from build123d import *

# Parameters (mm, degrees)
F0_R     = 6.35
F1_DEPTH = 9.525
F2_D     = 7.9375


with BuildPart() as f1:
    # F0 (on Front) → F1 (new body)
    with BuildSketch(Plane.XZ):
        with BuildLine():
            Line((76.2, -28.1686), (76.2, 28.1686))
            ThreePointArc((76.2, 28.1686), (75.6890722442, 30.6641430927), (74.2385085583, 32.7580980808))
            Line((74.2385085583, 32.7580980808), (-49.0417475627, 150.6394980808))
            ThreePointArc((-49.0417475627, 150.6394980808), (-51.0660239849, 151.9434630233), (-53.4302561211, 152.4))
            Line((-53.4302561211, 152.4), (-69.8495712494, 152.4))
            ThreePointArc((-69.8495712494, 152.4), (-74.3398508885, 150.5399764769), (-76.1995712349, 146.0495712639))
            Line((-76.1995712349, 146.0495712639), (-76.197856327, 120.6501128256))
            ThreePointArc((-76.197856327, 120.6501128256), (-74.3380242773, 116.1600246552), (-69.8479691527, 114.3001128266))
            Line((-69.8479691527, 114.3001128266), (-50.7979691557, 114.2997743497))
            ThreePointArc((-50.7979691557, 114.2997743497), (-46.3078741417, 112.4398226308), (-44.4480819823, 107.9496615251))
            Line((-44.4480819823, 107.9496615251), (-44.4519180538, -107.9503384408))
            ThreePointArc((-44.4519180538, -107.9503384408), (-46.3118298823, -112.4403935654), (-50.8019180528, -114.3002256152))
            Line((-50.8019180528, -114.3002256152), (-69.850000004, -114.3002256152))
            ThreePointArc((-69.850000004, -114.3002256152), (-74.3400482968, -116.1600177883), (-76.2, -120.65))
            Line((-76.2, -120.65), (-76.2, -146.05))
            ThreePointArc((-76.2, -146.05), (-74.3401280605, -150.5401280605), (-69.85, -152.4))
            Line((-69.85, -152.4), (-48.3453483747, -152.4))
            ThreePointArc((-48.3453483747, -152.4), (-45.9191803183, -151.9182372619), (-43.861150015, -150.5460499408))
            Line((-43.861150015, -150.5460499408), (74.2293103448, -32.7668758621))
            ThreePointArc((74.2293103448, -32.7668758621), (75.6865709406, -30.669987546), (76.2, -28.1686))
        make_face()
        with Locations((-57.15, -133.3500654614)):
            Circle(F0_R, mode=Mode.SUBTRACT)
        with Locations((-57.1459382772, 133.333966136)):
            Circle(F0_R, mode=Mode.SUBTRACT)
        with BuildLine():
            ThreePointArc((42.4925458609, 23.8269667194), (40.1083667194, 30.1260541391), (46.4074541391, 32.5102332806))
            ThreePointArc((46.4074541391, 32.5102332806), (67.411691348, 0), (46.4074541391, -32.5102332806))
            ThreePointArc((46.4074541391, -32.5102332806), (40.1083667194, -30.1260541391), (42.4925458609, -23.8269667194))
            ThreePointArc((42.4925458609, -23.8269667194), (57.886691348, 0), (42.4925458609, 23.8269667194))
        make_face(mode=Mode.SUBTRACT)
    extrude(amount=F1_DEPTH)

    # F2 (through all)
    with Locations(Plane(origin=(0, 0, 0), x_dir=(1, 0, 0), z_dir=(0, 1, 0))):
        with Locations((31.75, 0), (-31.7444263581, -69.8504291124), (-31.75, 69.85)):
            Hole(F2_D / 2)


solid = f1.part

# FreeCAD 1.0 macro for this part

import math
import FreeCAD as App
import Part
import Sketcher
Q = App.Units.Quantity

doc = App.newDocument("Part")
body = doc.addObject("PartDesign::Body", "Body")

sketch1 = body.newObject("Sketcher::SketchObject", "Sketch")
sketch1.AttachmentSupport = (doc.getObject("XZ_Plane"), [""])
sketch1.MapMode = "FlatFace"
sketch1.addGeometry(Part.LineSegment(App.Vector(76.2, -28.1686, 0), App.Vector(76.2, 28.1686, 0)), False)
sketch1.addGeometry(Part.ArcOfCircle(Part.Circle(App.Vector(69.85, 28.1686, 0), App.Vector(0, 0, 1), 6.35), math.radians(0), math.radians(46.282459)), False)
sketch1.addGeometry(Part.LineSegment(App.Vector(74.238509, 32.758098, 0), App.Vector(-49.041748, 150.639498, 0)), False)
sketch1.addGeometry(Part.ArcOfCircle(Part.Circle(App.Vector(-53.430256, 146.05, 0), App.Vector(0, 0, 1), 6.35), math.radians(46.282459), math.radians(90)), False)
sketch1.addGeometry(Part.LineSegment(App.Vector(-53.430256, 152.4, 0), App.Vector(-69.849571, 152.4, 0)), False)
sketch1.addGeometry(Part.ArcOfCircle(Part.Circle(App.Vector(-69.849571, 146.05, 0), App.Vector(0, 0, 1), 6.35), math.radians(90), math.radians(180.003868)), False)
sketch1.addGeometry(Part.LineSegment(App.Vector(-76.199571, 146.049571, 0), App.Vector(-76.197856, 120.650113, 0)), False)
sketch1.addGeometry(Part.ArcOfCircle(Part.Circle(App.Vector(-69.847856, 120.650113, 0), App.Vector(0, 0, 1), 6.35), math.radians(180), math.radians(269.998982)), False)
sketch1.addGeometry(Part.LineSegment(App.Vector(-69.847969, 114.300113, 0), App.Vector(-50.797969, 114.299774, 0)), False)
sketch1.addGeometry(Part.ArcOfCircle(Part.Circle(App.Vector(-50.798082, 107.949774, 0), App.Vector(0, 0, 1), 6.35), math.radians(-0.001018), math.radians(89.998982)), False)
sketch1.addGeometry(Part.LineSegment(App.Vector(-44.448082, 107.949662, 0), App.Vector(-44.451918, -107.950338, 0)), False)
sketch1.addGeometry(Part.ArcOfCircle(Part.Circle(App.Vector(-50.801918, -107.950226, 0), App.Vector(0, 0, 1), 6.35), math.radians(-90), math.radians(-0.001018)), False)
sketch1.addGeometry(Part.LineSegment(App.Vector(-50.801918, -114.300226, 0), App.Vector(-69.85, -114.300226, 0)), False)
sketch1.addGeometry(Part.ArcOfCircle(Part.Circle(App.Vector(-69.85, -120.650226, 0), App.Vector(0, 0, 1), 6.35), math.radians(90), math.radians(179.997964)), False)
sketch1.addGeometry(Part.LineSegment(App.Vector(-76.2, -120.65, 0), App.Vector(-76.2, -146.05, 0)), False)
sketch1.addGeometry(Part.ArcOfCircle(Part.Circle(App.Vector(-69.85, -146.05, 0), App.Vector(0, 0, 1), 6.35), math.radians(180), math.radians(270)), False)
sketch1.addGeometry(Part.LineSegment(App.Vector(-69.85, -152.4, 0), App.Vector(-48.345348, -152.4, 0)), False)
sketch1.addGeometry(Part.ArcOfCircle(Part.Circle(App.Vector(-48.345348, -146.05, 0), App.Vector(0, 0, 1), 6.35), math.radians(-90), math.radians(-45.075615)), False)
sketch1.addGeometry(Part.LineSegment(App.Vector(-43.86115, -150.54605, 0), App.Vector(74.22931, -32.766876, 0)), False)
sketch1.addGeometry(Part.ArcOfCircle(Part.Circle(App.Vector(69.85, -28.1686, 0), App.Vector(0, 0, 1), 6.35), math.radians(-46.397181), math.radians(0)), False)
sketch1.addGeometry(Part.Circle(App.Vector(-57.15, -133.350065, 0), App.Vector(0, 0, 1), 6.35), False)
sketch1.addGeometry(Part.Circle(App.Vector(-57.145938, 133.333966, 0), App.Vector(0, 0, 1), 6.35), False)
sketch1.addGeometry(Part.ArcOfCircle(Part.Circle(App.Vector(31.75, 0, 0), App.Vector(0, 0, 1), 26.136691), math.radians(-65.731452), math.radians(65.731452)), False)
sketch1.addGeometry(Part.ArcOfCircle(Part.Circle(App.Vector(44.45, 28.1686, 0), App.Vector(0, 0, 1), 4.7625), math.radians(65.731452), math.radians(245.731452)), False)
sketch1.addGeometry(Part.ArcOfCircle(Part.Circle(App.Vector(31.75, 0, 0), App.Vector(0, 0, 1), 35.661691), math.radians(-65.731452), math.radians(65.731452)), False)
sketch1.addGeometry(Part.ArcOfCircle(Part.Circle(App.Vector(44.45, -28.1686, 0), App.Vector(0, 0, 1), 4.7625), math.radians(114.268548), math.radians(294.268548)), False)
sketch1.addConstraint(Sketcher.Constraint("Tangent", 0, 2, 1, 1))
sketch1.addConstraint(Sketcher.Constraint("Tangent", 1, 2, 2, 1))
sketch1.addConstraint(Sketcher.Constraint("Tangent", 2, 2, 3, 1))
sketch1.addConstraint(Sketcher.Constraint("Tangent", 3, 2, 4, 1))
sketch1.addConstraint(Sketcher.Constraint("Tangent", 4, 2, 5, 1))
sketch1.addConstraint(Sketcher.Constraint("Tangent", 5, 2, 6, 1))
sketch1.addConstraint(Sketcher.Constraint("Coincident", 6, 2, 7, 1))
sketch1.addConstraint(Sketcher.Constraint("Tangent", 7, 2, 8, 1))
sketch1.addConstraint(Sketcher.Constraint("Tangent", 8, 2, 9, 2))
sketch1.addConstraint(Sketcher.Constraint("Tangent", 9, 1, 10, 1))
sketch1.addConstraint(Sketcher.Constraint("Tangent", 10, 2, 11, 2))
sketch1.addConstraint(Sketcher.Constraint("Tangent", 11, 1, 12, 1))
sketch1.addConstraint(Sketcher.Constraint("Tangent", 12, 2, 13, 1))
sketch1.addConstraint(Sketcher.Constraint("Coincident", 13, 2, 14, 1))
sketch1.addConstraint(Sketcher.Constraint("Tangent", 14, 2, 15, 1))
sketch1.addConstraint(Sketcher.Constraint("Tangent", 15, 2, 16, 1))
sketch1.addConstraint(Sketcher.Constraint("Tangent", 16, 2, 17, 1))
sketch1.addConstraint(Sketcher.Constraint("Tangent", 17, 2, 18, 1))
sketch1.addConstraint(Sketcher.Constraint("Coincident", 18, 2, 19, 1))
sketch1.addConstraint(Sketcher.Constraint("Tangent", 19, 2, 0, 1))
sketch1.addConstraint(Sketcher.Constraint("Tangent", 22, 2, 23, 2))
sketch1.addConstraint(Sketcher.Constraint("Tangent", 23, 1, 24, 2))
sketch1.addConstraint(Sketcher.Constraint("Tangent", 24, 1, 25, 2))
sketch1.addConstraint(Sketcher.Constraint("Tangent", 25, 1, 22, 1))
sketch1.addConstraint(Sketcher.Constraint("Vertical", 0))
sketch1.addConstraint(Sketcher.Constraint("Horizontal", 4))
sketch1.addConstraint(Sketcher.Constraint("Horizontal", 12))
sketch1.addConstraint(Sketcher.Constraint("Vertical", 14))
sketch1.addConstraint(Sketcher.Constraint("Horizontal", 16))
sketch1.addConstraint(Sketcher.Constraint("Coincident", 24, 3, 22, 3))
sketch1.addConstraint(Sketcher.Constraint("Equal", 1, 3))
sketch1.addConstraint(Sketcher.Constraint("Equal", 3, 5))
sketch1.addConstraint(Sketcher.Constraint("Equal", 5, 7))
sketch1.addConstraint(Sketcher.Constraint("Equal", 7, 9))
sketch1.addConstraint(Sketcher.Constraint("Equal", 9, 11))
sketch1.addConstraint(Sketcher.Constraint("Equal", 11, 13))
sketch1.addConstraint(Sketcher.Constraint("Equal", 13, 15))
sketch1.addConstraint(Sketcher.Constraint("Equal", 15, 17))
sketch1.addConstraint(Sketcher.Constraint("Equal", 17, 19))
sketch1.addConstraint(Sketcher.Constraint("Equal", 19, 20))
sketch1.addConstraint(Sketcher.Constraint("Equal", 20, 21))
sketch1.addConstraint(Sketcher.Constraint("Symmetric", 23, 3, 25, 3, -1))
sketch1.addConstraint(Sketcher.Constraint("Perpendicular", 8, 10))
sketch1.addConstraint(Sketcher.Constraint("Horizontal", 1, 3, 23, 3))
sketch1.addConstraint(Sketcher.Constraint("Horizontal", 19, 3, 25, 3))
sketch1.addConstraint(Sketcher.Constraint("Horizontal", 7, 3, 6, 2))
sketch1.addConstraint(Sketcher.Constraint("Diameter", 20, Q("0.5 in")))
sketch1.addConstraint(Sketcher.Constraint("DistanceY", 14, 2, 14, 1, Q("1 in")))
sketch1.addConstraint(Sketcher.Constraint("DistanceX", -1, 1, 0, 2, Q("3 in")))
sketch1.addConstraint(Sketcher.Constraint("DistanceY", -1, 1, 3, 2, Q("6 in")))
sketch1.addConstraint(Sketcher.Constraint("DistanceX", 13, 2, -1, 1, Q("3 in")))
sketch1.addConstraint(Sketcher.Constraint("DistanceY", 15, 2, -1, 1, Q("6 in")))
sketch1.addConstraint(Sketcher.Constraint("Radius", 23, Q("0.1875 in")))
sketch1.addConstraint(Sketcher.Constraint("DistanceY", 13, 3, 9, 3, Q("9 in")))
sketch1.addConstraint(Sketcher.Constraint("DistanceX", 20, 3, 19, 3, Q("5 in")))
sketch1.addConstraint(Sketcher.Constraint("DistanceX", 23, 3, 1, 3, Q("1 in")))
sketch1.addConstraint(Sketcher.Constraint("DistanceX", 22, 3, 1, 3, Q("1.5 in")))
sketch1.addConstraint(Sketcher.Constraint("Distance", 8, Q("0.75 in")))
sketch1.addConstraint(Sketcher.Constraint("DistanceY", 0, 1, 0, 2, Q("2.218 in")))
sketch1.addConstraint(Sketcher.Constraint("DistanceX", 12, 2, 12, 1, Q("19.048082 mm")))
sketch1.addConstraint(Sketcher.Constraint("DistanceX", 16, 1, 16, 2, Q("21.504652 mm")))
sketch1.addConstraint(Sketcher.Constraint("DistanceY", -1, 1, 1, 2, Q("32.758098 mm")))
sketch1.addConstraint(Sketcher.Constraint("DistanceX", 7, 3, 3, 3, Q("16.4176 mm")))
sketch1.addConstraint(Sketcher.Constraint("Distance", 6, Q("25.399458 mm")))
sketch1.addConstraint(Sketcher.Constraint("DistanceX", 4, 2, 4, 1, Q("16.419315 mm")))
sketch1.addConstraint(Sketcher.Constraint("DistanceX", 21, 3, -1, 1, Q("57.145938 mm")))
sketch1.addConstraint(Sketcher.Constraint("DistanceX", -1, 1, 18, 2, Q("74.22931 mm")))
sketch1.addConstraint(Sketcher.Constraint("DistanceY", 20, 3, 13, 3, Q("12.69984 mm")))
sketch1.addConstraint(Sketcher.Constraint("DistanceY", 9, 3, 21, 3, Q("25.384192 mm")))
pad1 = body.newObject("PartDesign::Pad", "Pad")
pad1.Profile = sketch1
pad1.Length = Q("0.375 in")

sketch2 = body.newObject("Sketcher::SketchObject", "Sketch001")
sketch2.AttachmentSupport = (doc.getObject("XZ_Plane"), [""])
sketch2.MapMode = "FlatFace"
sketch2.addGeometry(Part.Circle(App.Vector(31.75, 0, 0), App.Vector(0, 0, 1), 3.96875), False)
sketch2.addGeometry(Part.Circle(App.Vector(-31.744426, 69.850429, 0), App.Vector(0, 0, 1), 3.96875), False)
sketch2.addGeometry(Part.Circle(App.Vector(-31.75, -69.85, 0), App.Vector(0, 0, 1), 3.96875), False)
sketch2.addConstraint(Sketcher.Constraint("Equal", 0, 1))
sketch2.addConstraint(Sketcher.Constraint("Equal", 1, 2))
sketch2.addConstraint(Sketcher.Constraint("PointOnObject", 0, 3, -1))
sketch2.addConstraint(Sketcher.Constraint("Diameter", 0, Q("0.3125 in")))
sketch2.addConstraint(Sketcher.Constraint("DistanceX", 2, 3, 0, 3, Q("2.5 in")))
sketch2.addConstraint(Sketcher.Constraint("DistanceX", -1, 1, 0, 3, Q("1.25 in")))
sketch2.addConstraint(Sketcher.Constraint("DistanceY", 2, 3, -1, 1, Q("2.75 in")))
sketch2.addConstraint(Sketcher.Constraint("DistanceY", -1, 1, 1, 3, Q("69.850429 mm")))
sketch2.addConstraint(Sketcher.Constraint("DistanceX", 1, 3, -1, 1, Q("31.744426 mm")))
doc.recompute()
hole = body.newObject("PartDesign::Hole", "Hole")
hole.Profile = sketch2
hole.ThreadType = "None"
hole.Diameter = Q("0.3125 in")
hole.DepthType = "ThroughAll"
hole.Reversed = True

doc.recompute()
